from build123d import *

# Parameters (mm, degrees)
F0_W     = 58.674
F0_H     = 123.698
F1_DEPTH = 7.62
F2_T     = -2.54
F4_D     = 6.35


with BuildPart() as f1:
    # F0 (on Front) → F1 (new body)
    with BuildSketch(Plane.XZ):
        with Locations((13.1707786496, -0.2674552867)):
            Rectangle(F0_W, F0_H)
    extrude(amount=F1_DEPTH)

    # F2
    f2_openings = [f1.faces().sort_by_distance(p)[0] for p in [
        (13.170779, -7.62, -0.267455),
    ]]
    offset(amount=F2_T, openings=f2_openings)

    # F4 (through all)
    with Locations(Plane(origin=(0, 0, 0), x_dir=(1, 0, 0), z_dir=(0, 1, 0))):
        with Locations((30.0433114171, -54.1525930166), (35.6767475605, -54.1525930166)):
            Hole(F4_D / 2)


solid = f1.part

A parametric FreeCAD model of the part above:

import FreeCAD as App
import Part
import Sketcher
Q = App.Units.Quantity


def faces_at(feature, points):
    """Names of the faces that lie closest to the given points."""
    faces = feature.Shape.Faces
    near = lambda p: min(range(len(faces)), key=lambda i: faces[i].distToShape(Part.Vertex(*p))[0])
    return sorted({f"Face{near(p) + 1}" for p in points})

doc = App.newDocument("Part")
params = doc.addObject("Spreadsheet::Sheet", "Params")
for row, (alias, value) in enumerate([
    ("sketch1_width", "2.31 in"),
    ("sketch1_height", "4.87 in"),
    ("pad1_length", "0.3 in"),
    ("thickness_wall", "0.1 in"),
    ("sketch2_diameter", "0.25 in"),
    ("hole_diameter", "0.25 in"),
], start=1):
    params.set(f"A{row}", alias)
    params.set(f"B{row}", "=" + value)
    params.setAlias(f"B{row}", alias)

body = doc.addObject("PartDesign::Body", "Body")

# Sketch on XZ plane
sketch1 = body.newObject("Sketcher::SketchObject", "Sketch")
sketch1.AttachmentSupport = (doc.getObject("XZ_Plane"), [""])
sketch1.MapMode = "FlatFace"
sketch1.addGeometry([
    Part.LineSegment(App.Vector(-16.166221, 61.581545, 0), App.Vector(-16.166221, -62.116455, 0)),
    Part.LineSegment(App.Vector(-16.166221, -62.116455, 0), App.Vector(42.507779, -62.116455, 0)),
    Part.LineSegment(App.Vector(42.507779, -62.116455, 0), App.Vector(42.507779, 61.581545, 0)),
    Part.LineSegment(App.Vector(42.507779, 61.581545, 0), App.Vector(-16.166221, 61.581545, 0)),
], False)
sketch1.addConstraint([
    Sketcher.Constraint("Coincident", 0, 2, 1, 1),
    Sketcher.Constraint("Coincident", 1, 2, 2, 1),
    Sketcher.Constraint("Coincident", 2, 2, 3, 1),
    Sketcher.Constraint("Coincident", 3, 2, 0, 1),
    Sketcher.Constraint("Vertical", 0),
    Sketcher.Constraint("Horizontal", 1),
    Sketcher.Constraint("Vertical", 2),
    Sketcher.Constraint("Horizontal", 3),
    Sketcher.Constraint("DistanceX", 1, 1, 1, 2, Q("2.31 in")),
    Sketcher.Constraint("DistanceY", 0, 2, 0, 1, Q("4.87 in")),
    Sketcher.Constraint("DistanceX", 0, 2, -1, 1, Q("16.166221 mm")),
    Sketcher.Constraint("DistanceY", 0, 2, -1, 1, Q("62.116455 mm")),
])
sketch1.setExpression("Constraints[8]", "Params.sketch1_width")
sketch1.setExpression("Constraints[9]", "Params.sketch1_height")
pad1 = body.newObject("PartDesign::Pad", "Pad")
pad1.Profile = sketch1
pad1.setExpression("Length", "Params.pad1_length")
doc.recompute()

thickness = body.newObject("PartDesign::Thickness", "Thickness")
thickness.Base = (pad1, faces_at(pad1, [(13.171, -7.62, -0.267)]))
thickness.setExpression("Value", "Params.thickness_wall")
thickness.Reversed = True
thickness.Join = "Arc"

# Sketch on XZ plane
sketch2 = body.newObject("Sketcher::SketchObject", "Sketch001")
sketch2.AttachmentSupport = (doc.getObject("XZ_Plane"), [""])
sketch2.MapMode = "FlatFace"
sketch2.addGeometry([
    Part.Circle(App.Vector(30.043311, 54.152593, 0), App.Vector(0, 0, 1), 3.175),
    Part.Circle(App.Vector(35.676748, 54.152593, 0), App.Vector(0, 0, 1), 3.175),
], False)
sketch2.addConstraint([
    Sketcher.Constraint("Equal", 0, 1),
    Sketcher.Constraint("Horizontal", 0, 3, 1, 3),
    Sketcher.Constraint("Diameter", 0, Q("0.25 in")),
    Sketcher.Constraint("DistanceX", -1, 1, 0, 3, Q("30.043311 mm")),
    Sketcher.Constraint("DistanceY", -1, 1, 0, 3, Q("54.152593 mm")),
    Sketcher.Constraint("DistanceX", -1, 1, 1, 3, Q("35.676748 mm")),
])
sketch2.setExpression("Constraints[2]", "Params.sketch2_diameter")
doc.recompute()
hole = body.newObject("PartDesign::Hole", "Hole")
hole.Profile = sketch2
hole.ThreadType = "None"
hole.setExpression("Diameter", "Params.hole_diameter")
hole.DepthType = "ThroughAll"
hole.Reversed = True

doc.recompute()
